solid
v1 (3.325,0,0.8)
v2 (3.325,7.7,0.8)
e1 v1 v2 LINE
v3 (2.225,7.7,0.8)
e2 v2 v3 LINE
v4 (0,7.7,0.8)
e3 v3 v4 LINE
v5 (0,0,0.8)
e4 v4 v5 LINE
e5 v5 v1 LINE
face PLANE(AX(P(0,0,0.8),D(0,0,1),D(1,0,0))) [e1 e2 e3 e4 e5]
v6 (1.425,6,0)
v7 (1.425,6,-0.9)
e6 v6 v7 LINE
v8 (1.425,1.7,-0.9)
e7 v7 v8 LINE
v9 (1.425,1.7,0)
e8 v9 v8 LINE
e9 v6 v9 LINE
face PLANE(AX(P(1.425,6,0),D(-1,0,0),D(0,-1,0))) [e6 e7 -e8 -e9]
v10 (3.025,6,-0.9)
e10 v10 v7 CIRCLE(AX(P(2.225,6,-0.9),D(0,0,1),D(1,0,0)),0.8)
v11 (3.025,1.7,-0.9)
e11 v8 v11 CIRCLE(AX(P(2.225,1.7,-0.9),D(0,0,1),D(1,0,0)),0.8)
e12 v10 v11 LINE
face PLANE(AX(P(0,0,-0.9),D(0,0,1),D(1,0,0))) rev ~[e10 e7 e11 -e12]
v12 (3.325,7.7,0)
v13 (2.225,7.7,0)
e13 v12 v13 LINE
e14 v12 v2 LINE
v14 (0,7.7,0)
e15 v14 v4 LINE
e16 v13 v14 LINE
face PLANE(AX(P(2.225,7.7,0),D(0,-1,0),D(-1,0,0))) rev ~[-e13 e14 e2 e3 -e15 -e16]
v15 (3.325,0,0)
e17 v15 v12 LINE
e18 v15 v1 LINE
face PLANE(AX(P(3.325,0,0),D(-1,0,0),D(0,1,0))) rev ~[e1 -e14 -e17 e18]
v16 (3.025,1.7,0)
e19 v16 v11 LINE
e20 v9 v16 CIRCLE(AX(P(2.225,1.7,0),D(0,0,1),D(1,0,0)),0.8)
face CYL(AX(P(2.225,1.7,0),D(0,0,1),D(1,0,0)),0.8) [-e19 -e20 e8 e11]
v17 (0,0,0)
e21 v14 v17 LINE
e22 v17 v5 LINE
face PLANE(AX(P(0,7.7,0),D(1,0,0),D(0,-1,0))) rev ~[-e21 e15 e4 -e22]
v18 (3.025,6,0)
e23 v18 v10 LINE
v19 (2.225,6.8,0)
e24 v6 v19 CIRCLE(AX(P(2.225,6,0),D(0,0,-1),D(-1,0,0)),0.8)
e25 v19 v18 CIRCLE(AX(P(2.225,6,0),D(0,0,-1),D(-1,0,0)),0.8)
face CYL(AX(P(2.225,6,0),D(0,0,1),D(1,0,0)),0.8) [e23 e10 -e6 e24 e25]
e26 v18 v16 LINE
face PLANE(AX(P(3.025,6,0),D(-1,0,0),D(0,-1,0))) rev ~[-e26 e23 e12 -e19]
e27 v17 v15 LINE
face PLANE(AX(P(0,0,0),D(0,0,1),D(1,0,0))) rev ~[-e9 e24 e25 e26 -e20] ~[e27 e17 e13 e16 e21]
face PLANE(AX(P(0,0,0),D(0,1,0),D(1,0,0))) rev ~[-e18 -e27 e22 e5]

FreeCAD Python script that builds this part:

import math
import FreeCAD as App
import Part
import Sketcher
from FreeCAD import Vector
Q = App.Units.Quantity


def add_polygon(sketch, points):
    """Adds a closed chain of lines whose ends are joined by coincident constraints."""
    first, n = sketch.GeometryCount, len(points)
    for a, b in zip(points, points[1:] + points[:1]):
        sketch.addGeometry(Part.LineSegment(App.Vector(*a, 0), App.Vector(*b, 0)), False)
    for i in range(n):
        sketch.addConstraint(Sketcher.Constraint("Coincident", first + i, 2, first + (i + 1) % n, 1))

doc = App.newDocument("Part")
body = doc.addObject("PartDesign::Body", "Body")

# Sketch on XY plane
sketch1 = body.newObject("Sketcher::SketchObject", "Sketch")
sketch1.AttachmentSupport = (doc.getObject("XY_Plane"), [""])
sketch1.MapMode = "FlatFace"
add_polygon(sketch1, [(0, 7.7), (0, 0), (3.3, 0), (3.3, 7.7), (2.2, 7.7)])  # lines 0-4
sketch1.addConstraint(Sketcher.Constraint("Vertical", 0))
sketch1.addConstraint(Sketcher.Constraint("Horizontal", 1))
sketch1.addConstraint(Sketcher.Constraint("Vertical", 2))
sketch1.addConstraint(Sketcher.Constraint("Horizontal", 3))
sketch1.addConstraint(Sketcher.Constraint("Horizontal", 4))
sketch1.addConstraint(Sketcher.Constraint("Coincident", 0, 2, -1, 1))
sketch1.addConstraint(Sketcher.Constraint("DistanceY", 0, 2, 0, 1, Q("7.7 mm")))
sketch1.addConstraint(Sketcher.Constraint("DistanceX", 3, 2, 3, 1, Q("1.1 mm")))
sketch1.addConstraint(Sketcher.Constraint("DistanceX", 1, 1, 1, 2, Q("3.325 mm")))
pad1 = body.newObject("PartDesign::Pad", "Pad")
pad1.Profile = sketch1
pad1.Length = 0.8

# Sketch on XY plane
sketch2 = body.newObject("Sketcher::SketchObject", "Sketch001")
sketch2.AttachmentSupport = (doc.getObject("XY_Plane"), [""])
sketch2.MapMode = "FlatFace"
sketch2.addGeometry(Part.ArcOfCircle(Part.Circle(Vector(2.2, 6, 0), Vector(0, 0, 1), 0.8), math.radians(0), math.radians(180)), False)
sketch2.addGeometry(Part.LineSegment(Vector(1.4, 6, 0), Vector(1.4, 1.7, 0)), False)
sketch2.addGeometry(Part.ArcOfCircle(Part.Circle(Vector(2.2, 1.7, 0), Vector(0, 0, 1), 0.8), math.radians(180), math.radians(360)), False)
sketch2.addGeometry(Part.LineSegment(Vector(3, 1.7, 0), Vector(3, 6, 0)), False)
sketch2.addConstraint(Sketcher.Constraint("Tangent", 0, 2, 1, 1))
sketch2.addConstraint(Sketcher.Constraint("Tangent", 1, 2, 2, 1))
sketch2.addConstraint(Sketcher.Constraint("Tangent", 2, 2, 3, 1))
sketch2.addConstraint(Sketcher.Constraint("Tangent", 3, 2, 0, 1))
sketch2.addConstraint(Sketcher.Constraint("Vertical", 1))
sketch2.addConstraint(Sketcher.Constraint("Vertical", 3))
sketch2.addConstraint(Sketcher.Constraint("Radius", 0, Q("0.8 mm")))
sketch2.addConstraint(Sketcher.Constraint("DistanceY", -1, 1, 2, 3, Q("1.7 mm")))
sketch2.addConstraint(Sketcher.Constraint("DistanceY", 1, 2, 1, 1, Q("4.3 mm")))
sketch2.addConstraint(Sketcher.Constraint("DistanceX", -1, 1, 0, 2, Q("1.425 mm")))
pad2 = body.newObject("PartDesign::Pad", "Pad001")
pad2.Profile = sketch2
pad2.Length = 0.9
pad2.Reversed = True

doc.recompute()
